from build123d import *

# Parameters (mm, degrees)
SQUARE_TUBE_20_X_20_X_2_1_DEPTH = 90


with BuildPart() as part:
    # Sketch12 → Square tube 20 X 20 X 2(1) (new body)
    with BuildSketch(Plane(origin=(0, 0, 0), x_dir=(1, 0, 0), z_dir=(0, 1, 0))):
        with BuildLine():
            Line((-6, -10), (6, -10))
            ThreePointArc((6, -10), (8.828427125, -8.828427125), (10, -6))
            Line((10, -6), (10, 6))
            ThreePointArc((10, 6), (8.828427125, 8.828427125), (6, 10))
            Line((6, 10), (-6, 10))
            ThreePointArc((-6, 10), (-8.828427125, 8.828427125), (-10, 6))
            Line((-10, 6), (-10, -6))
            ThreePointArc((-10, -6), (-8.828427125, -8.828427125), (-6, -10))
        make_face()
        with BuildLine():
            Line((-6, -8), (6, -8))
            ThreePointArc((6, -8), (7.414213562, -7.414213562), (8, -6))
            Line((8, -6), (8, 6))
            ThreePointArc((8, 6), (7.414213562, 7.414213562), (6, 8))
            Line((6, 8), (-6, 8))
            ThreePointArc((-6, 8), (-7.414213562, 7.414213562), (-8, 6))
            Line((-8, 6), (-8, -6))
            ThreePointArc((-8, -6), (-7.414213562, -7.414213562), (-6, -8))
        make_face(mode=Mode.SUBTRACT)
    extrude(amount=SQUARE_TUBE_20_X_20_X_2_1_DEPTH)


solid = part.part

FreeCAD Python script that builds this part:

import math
import FreeCAD as App
import Part
import Sketcher

V = App.Vector

doc = App.newDocument("Part")
body = doc.addObject("PartDesign::Body", "Body")

sketch1 = body.newObject("Sketcher::SketchObject", "Sketch")
sketch1.AttachmentSupport = (doc.getObject("XZ_Plane"), [""])
sketch1.MapMode = "FlatFace"
sketch1.addGeometry(Part.LineSegment(V(-6, 10, 0), V(6, 10, 0)), False)
sketch1.addGeometry(Part.ArcOfCircle(Part.Circle(V(6, 6, 0), V(0, 0, 1), 4), math.radians(0), math.radians(90)), False)
sketch1.addGeometry(Part.LineSegment(V(10, 6, 0), V(10, -6, 0)), False)
sketch1.addGeometry(Part.ArcOfCircle(Part.Circle(V(6, -6, 0), V(0, 0, 1), 4), math.radians(-90), math.radians(0)), False)
sketch1.addGeometry(Part.LineSegment(V(6, -10, 0), V(-6, -10, 0)), False)
sketch1.addGeometry(Part.ArcOfCircle(Part.Circle(V(-6, -6, 0), V(0, 0, 1), 4), math.radians(180), math.radians(270)), False)
sketch1.addGeometry(Part.LineSegment(V(-10, -6, 0), V(-10, 6, 0)), False)
sketch1.addGeometry(Part.ArcOfCircle(Part.Circle(V(-6, 6, 0), V(0, 0, 1), 4), math.radians(90), math.radians(180)), False)
sketch1.addGeometry(Part.LineSegment(V(6, 8, 0), V(-6, 8, 0)), False)
sketch1.addGeometry(Part.ArcOfCircle(Part.Circle(V(-6, 6, 0), V(0, 0, 1), 2), math.radians(90), math.radians(180)), False)
sketch1.addGeometry(Part.LineSegment(V(-8, 6, 0), V(-8, -6, 0)), False)
sketch1.addGeometry(Part.ArcOfCircle(Part.Circle(V(-6, -6, 0), V(0, 0, 1), 2), math.radians(-180), math.radians(-90)), False)
sketch1.addGeometry(Part.LineSegment(V(-6, -8, 0), V(6, -8, 0)), False)
sketch1.addGeometry(Part.ArcOfCircle(Part.Circle(V(6, -6, 0), V(0, 0, 1), 2), math.radians(-90), math.radians(0)), False)
sketch1.addGeometry(Part.LineSegment(V(8, -6, 0), V(8, 6, 0)), False)
sketch1.addGeometry(Part.ArcOfCircle(Part.Circle(V(6, 6, 0), V(0, 0, 1), 2), math.radians(0), math.radians(90)), False)
sketch1.addConstraint(Sketcher.Constraint("Tangent", 0, 2, 1, 2))
sketch1.addConstraint(Sketcher.Constraint("Tangent", 1, 1, 2, 1))
sketch1.addConstraint(Sketcher.Constraint("Tangent", 2, 2, 3, 2))
sketch1.addConstraint(Sketcher.Constraint("Tangent", 3, 1, 4, 1))
sketch1.addConstraint(Sketcher.Constraint("Tangent", 4, 2, 5, 2))
sketch1.addConstraint(Sketcher.Constraint("Tangent", 5, 1, 6, 1))
sketch1.addConstraint(Sketcher.Constraint("Tangent", 6, 2, 7, 2))
sketch1.addConstraint(Sketcher.Constraint("Tangent", 7, 1, 0, 1))
sketch1.addConstraint(Sketcher.Constraint("Tangent", 8, 2, 9, 1))
sketch1.addConstraint(Sketcher.Constraint("Tangent", 9, 2, 10, 1))
sketch1.addConstraint(Sketcher.Constraint("Tangent", 10, 2, 11, 1))
sketch1.addConstraint(Sketcher.Constraint("Tangent", 11, 2, 12, 1))
sketch1.addConstraint(Sketcher.Constraint("Tangent", 12, 2, 13, 1))
sketch1.addConstraint(Sketcher.Constraint("Tangent", 13, 2, 14, 1))
sketch1.addConstraint(Sketcher.Constraint("Tangent", 14, 2, 15, 1))
sketch1.addConstraint(Sketcher.Constraint("Tangent", 15, 2, 8, 1))
sketch1.addConstraint(Sketcher.Constraint("Horizontal", 0))
sketch1.addConstraint(Sketcher.Constraint("Vertical", 2))
sketch1.addConstraint(Sketcher.Constraint("Horizontal", 4))
sketch1.addConstraint(Sketcher.Constraint("Vertical", 6))
sketch1.addConstraint(Sketcher.Constraint("Horizontal", 8))
sketch1.addConstraint(Sketcher.Constraint("Vertical", 10))
sketch1.addConstraint(Sketcher.Constraint("Horizontal", 12))
sketch1.addConstraint(Sketcher.Constraint("Vertical", 14))
sketch1.addConstraint(Sketcher.Constraint("Coincident", 9, 3, 7, 3))
sketch1.addConstraint(Sketcher.Constraint("Coincident", 11, 3, 5, 3))
sketch1.addConstraint(Sketcher.Constraint("Coincident", 13, 3, 3, 3))
sketch1.addConstraint(Sketcher.Constraint("Equal", 1, 3))
sketch1.addConstraint(Sketcher.Constraint("Equal", 3, 5))
sketch1.addConstraint(Sketcher.Constraint("Equal", 5, 7))
sketch1.addConstraint(Sketcher.Constraint("Equal", 13, 15))
sketch1.addConstraint(Sketcher.Constraint("Symmetric", 1, 3, 5, 3, -1, 1))
sketch1.addConstraint(Sketcher.Constraint("Equal", 12, 2))
sketch1.addConstraint(Sketcher.Constraint("Radius", 1, 4.0))
sketch1.addConstraint(Sketcher.Constraint("Radius", 9, 2.0))
sketch1.addConstraint(Sketcher.Constraint("DistanceX", 0, 1, 0, 2, 12.0))
pad1 = body.newObject("PartDesign::Pad", "Pad")
pad1.Profile = sketch1
pad1.Length = 90
pad1.Reversed = True

doc.recompute()
